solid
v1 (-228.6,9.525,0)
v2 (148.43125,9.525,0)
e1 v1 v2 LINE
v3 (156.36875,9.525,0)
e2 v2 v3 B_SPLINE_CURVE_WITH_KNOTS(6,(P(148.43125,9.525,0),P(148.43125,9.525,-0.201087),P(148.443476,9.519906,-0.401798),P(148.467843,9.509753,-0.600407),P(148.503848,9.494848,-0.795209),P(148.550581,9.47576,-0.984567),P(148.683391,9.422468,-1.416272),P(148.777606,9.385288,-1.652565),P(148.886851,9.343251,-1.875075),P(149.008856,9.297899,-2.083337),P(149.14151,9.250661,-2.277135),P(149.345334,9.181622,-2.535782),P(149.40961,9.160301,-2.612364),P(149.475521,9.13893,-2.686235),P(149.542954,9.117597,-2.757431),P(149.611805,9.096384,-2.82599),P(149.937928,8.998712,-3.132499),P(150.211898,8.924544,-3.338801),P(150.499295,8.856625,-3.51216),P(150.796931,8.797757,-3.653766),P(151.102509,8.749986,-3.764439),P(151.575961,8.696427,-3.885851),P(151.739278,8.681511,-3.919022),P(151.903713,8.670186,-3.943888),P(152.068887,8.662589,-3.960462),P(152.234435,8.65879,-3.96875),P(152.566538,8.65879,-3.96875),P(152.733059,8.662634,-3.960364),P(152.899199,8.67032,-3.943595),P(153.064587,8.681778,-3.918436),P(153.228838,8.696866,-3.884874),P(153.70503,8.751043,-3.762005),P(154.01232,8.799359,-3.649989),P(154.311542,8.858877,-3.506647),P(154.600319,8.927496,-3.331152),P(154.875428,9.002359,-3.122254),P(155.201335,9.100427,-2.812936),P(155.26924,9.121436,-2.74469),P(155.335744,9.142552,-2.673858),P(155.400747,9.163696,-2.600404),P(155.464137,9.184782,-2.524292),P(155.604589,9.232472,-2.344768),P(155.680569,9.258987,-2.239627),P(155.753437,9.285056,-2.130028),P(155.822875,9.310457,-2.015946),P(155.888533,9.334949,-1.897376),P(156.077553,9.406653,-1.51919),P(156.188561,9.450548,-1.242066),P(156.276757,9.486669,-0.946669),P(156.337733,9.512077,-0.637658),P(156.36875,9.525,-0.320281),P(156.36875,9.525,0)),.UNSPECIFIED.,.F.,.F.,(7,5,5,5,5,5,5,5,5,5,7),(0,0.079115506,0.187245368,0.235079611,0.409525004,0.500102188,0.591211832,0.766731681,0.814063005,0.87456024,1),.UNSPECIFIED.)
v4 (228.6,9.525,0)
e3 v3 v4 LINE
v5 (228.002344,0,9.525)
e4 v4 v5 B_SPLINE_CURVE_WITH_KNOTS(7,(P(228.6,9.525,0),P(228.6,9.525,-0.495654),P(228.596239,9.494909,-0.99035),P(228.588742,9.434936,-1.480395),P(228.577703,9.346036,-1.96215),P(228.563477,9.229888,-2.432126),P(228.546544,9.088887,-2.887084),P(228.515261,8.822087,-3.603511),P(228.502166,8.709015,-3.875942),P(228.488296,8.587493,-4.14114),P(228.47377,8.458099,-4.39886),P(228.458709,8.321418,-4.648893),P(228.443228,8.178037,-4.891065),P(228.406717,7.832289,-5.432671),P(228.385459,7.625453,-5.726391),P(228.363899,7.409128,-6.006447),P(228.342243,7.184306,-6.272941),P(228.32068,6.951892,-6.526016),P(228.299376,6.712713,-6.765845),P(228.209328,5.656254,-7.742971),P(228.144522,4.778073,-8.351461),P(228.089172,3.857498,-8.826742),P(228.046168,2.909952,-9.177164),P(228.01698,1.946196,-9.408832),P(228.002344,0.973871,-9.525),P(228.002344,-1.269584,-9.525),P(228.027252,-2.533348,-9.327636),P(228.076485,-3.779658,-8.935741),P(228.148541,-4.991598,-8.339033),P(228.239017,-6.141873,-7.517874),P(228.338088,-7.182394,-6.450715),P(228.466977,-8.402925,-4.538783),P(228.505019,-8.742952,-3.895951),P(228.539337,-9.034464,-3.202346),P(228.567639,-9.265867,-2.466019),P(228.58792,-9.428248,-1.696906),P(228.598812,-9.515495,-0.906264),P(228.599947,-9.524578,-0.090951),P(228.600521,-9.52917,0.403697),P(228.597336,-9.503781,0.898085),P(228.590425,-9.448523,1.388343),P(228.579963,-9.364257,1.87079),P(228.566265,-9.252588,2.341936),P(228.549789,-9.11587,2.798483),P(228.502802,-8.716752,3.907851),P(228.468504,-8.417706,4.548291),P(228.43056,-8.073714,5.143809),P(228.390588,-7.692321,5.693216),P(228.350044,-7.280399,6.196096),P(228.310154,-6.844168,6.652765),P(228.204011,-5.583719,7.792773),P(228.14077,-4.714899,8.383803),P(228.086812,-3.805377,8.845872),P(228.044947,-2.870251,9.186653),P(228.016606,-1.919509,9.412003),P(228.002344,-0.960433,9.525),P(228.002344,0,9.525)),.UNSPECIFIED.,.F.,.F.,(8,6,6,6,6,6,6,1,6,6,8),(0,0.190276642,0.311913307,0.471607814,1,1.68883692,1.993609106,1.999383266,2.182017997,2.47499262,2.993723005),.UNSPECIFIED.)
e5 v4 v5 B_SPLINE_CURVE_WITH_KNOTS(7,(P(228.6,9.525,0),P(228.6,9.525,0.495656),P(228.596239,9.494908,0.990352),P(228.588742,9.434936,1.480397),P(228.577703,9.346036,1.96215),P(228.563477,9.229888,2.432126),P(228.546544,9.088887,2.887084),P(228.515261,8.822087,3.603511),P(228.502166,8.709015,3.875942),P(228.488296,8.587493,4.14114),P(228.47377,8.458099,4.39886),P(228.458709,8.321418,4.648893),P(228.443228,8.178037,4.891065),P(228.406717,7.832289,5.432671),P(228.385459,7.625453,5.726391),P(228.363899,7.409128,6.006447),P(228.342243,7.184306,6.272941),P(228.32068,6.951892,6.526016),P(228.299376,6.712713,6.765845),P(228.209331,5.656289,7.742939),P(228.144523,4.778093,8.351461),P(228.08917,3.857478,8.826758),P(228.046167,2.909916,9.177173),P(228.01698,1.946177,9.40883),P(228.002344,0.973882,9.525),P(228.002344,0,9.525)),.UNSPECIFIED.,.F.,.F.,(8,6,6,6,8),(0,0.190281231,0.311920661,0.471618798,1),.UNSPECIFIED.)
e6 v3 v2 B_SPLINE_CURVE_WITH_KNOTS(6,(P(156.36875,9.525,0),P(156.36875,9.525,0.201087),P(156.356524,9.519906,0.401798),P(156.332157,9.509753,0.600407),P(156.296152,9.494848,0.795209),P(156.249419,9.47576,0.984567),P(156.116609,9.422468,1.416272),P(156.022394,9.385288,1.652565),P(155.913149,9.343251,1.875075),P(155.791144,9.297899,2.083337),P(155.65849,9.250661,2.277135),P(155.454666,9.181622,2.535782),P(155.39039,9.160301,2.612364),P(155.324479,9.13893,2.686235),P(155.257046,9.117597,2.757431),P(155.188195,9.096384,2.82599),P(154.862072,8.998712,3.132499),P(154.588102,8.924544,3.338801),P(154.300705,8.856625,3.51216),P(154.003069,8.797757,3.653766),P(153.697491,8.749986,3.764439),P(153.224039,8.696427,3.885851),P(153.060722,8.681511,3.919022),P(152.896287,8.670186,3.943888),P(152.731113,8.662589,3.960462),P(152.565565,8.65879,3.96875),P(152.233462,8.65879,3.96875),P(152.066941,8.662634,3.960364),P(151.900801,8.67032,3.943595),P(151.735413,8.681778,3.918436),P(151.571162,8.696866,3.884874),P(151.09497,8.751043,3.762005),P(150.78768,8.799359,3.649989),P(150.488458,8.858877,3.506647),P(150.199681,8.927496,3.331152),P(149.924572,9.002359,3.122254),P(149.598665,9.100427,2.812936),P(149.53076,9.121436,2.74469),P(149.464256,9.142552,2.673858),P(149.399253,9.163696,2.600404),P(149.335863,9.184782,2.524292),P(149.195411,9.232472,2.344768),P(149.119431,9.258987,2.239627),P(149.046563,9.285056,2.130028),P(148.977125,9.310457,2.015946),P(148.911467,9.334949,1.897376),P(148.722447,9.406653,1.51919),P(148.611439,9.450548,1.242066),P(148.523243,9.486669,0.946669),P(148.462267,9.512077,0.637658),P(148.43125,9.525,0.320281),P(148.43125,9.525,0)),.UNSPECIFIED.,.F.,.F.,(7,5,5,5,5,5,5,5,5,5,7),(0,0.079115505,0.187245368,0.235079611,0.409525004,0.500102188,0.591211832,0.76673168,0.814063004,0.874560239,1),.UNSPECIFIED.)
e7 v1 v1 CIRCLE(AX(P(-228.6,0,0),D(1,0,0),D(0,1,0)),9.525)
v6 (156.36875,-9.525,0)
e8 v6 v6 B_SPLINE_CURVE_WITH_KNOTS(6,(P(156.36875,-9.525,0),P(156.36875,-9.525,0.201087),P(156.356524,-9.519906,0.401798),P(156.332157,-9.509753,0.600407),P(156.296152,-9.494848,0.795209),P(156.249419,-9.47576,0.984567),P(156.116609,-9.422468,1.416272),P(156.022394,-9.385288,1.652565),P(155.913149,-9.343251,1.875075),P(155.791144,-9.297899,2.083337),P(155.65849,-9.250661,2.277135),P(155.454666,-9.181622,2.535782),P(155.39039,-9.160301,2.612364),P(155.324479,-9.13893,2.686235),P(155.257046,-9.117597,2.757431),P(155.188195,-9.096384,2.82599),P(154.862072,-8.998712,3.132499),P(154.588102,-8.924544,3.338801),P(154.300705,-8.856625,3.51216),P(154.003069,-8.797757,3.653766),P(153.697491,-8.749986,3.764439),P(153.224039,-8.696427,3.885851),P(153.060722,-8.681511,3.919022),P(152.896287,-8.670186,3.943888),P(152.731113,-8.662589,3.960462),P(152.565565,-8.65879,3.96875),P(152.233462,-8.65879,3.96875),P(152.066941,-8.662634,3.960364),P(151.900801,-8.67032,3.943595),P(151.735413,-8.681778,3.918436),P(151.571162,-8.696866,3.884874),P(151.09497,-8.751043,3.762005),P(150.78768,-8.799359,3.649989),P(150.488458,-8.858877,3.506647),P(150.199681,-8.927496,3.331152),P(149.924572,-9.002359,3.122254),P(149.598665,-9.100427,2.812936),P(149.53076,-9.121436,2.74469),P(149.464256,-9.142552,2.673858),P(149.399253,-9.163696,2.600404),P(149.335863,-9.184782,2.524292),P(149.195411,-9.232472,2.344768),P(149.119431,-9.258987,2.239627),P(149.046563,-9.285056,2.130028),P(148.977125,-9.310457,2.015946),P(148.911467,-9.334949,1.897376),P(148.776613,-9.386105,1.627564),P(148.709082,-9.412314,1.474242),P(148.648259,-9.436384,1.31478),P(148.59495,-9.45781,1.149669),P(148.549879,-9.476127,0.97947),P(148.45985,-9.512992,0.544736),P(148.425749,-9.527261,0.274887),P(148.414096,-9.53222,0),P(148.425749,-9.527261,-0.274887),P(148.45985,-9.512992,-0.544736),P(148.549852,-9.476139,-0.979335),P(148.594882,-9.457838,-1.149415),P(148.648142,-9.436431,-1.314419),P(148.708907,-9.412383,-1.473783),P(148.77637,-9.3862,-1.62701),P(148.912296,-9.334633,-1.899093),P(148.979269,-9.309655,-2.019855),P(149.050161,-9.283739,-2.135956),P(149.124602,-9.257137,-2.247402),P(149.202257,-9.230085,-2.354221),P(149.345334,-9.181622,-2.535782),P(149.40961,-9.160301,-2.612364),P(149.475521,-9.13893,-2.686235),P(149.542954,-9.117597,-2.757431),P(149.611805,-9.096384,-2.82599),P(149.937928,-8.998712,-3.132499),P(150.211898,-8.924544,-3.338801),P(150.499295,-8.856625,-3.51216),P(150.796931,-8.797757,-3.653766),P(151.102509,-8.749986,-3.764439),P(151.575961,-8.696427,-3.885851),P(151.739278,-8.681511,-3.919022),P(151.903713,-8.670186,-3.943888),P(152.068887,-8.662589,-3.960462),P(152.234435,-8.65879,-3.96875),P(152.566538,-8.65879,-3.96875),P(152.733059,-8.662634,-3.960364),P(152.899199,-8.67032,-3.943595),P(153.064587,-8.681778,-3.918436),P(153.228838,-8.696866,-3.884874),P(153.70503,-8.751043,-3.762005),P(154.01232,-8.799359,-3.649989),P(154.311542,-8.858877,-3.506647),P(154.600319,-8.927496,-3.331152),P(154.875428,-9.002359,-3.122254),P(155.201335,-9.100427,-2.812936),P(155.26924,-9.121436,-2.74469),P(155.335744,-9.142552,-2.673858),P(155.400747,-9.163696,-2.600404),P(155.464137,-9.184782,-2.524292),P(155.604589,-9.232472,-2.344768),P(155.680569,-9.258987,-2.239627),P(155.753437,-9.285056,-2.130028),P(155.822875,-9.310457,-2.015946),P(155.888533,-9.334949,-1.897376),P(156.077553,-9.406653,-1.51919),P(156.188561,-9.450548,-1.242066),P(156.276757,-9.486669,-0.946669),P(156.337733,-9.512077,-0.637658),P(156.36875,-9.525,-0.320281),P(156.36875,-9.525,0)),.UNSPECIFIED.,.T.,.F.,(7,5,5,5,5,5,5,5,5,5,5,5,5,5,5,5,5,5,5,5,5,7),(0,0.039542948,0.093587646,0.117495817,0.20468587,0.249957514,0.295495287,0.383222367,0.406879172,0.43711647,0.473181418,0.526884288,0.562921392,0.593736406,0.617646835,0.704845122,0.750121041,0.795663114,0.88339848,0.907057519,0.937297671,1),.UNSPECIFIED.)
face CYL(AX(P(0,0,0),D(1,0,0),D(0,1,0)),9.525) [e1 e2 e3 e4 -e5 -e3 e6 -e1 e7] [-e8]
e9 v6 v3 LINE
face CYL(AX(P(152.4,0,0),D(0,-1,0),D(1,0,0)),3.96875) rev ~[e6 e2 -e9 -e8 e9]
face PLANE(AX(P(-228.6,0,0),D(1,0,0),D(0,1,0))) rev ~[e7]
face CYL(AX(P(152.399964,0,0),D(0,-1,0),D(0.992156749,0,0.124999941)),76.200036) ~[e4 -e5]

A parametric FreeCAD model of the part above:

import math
import FreeCAD as App
import Part
import Sketcher

V = App.Vector
Q = App.Units.Quantity

doc = App.newDocument("Part")
body = doc.addObject("PartDesign::Body", "Body")

# Sketch on YZ plane
sketch1 = body.newObject("Sketcher::SketchObject", "Sketch")
sketch1.AttachmentSupport = (doc.getObject("YZ_Plane"), [""])
sketch1.MapMode = "FlatFace"
sketch1.addGeometry(Part.Circle(V(0, 0, 0), V(0, 0, 1), 10), False)
sketch1.addConstraint(Sketcher.Constraint("Coincident", 0, 3, -1, 1))
sketch1.addConstraint(Sketcher.Constraint("Diameter", 0, Q("0.75 in")))
pad1 = body.newObject("PartDesign::Pad", "Pad")
pad1.Profile = sketch1
pad1.Length = Q("18 in")
pad1.Midplane = True

# Sketch on XZ plane
sketch2 = body.newObject("Sketcher::SketchObject", "Sketch001")
sketch2.AttachmentSupport = (doc.getObject("XZ_Plane"), [""])
sketch2.MapMode = "FlatFace"
sketch2.addGeometry(Part.Circle(V(152.4, 0, 0), V(0, 0, 1), 4), False)
sketch2.addGeometry(Part.ArcOfCircle(Part.Circle(V(152.4, 0, 0), V(0, 0, 1), 76.2), math.radians(-7.18), math.radians(7.18)), False)
sketch2.addGeometry(Part.LineSegment(V(228, -9.5, 0), V(235.3, -9.5, 0)), False)
sketch2.addGeometry(Part.LineSegment(V(235.3, -9.5, 0), V(235.3, 9.5, 0)), False)
sketch2.addGeometry(Part.LineSegment(V(235.3, 9.5, 0), V(228, 9.5, 0)), False)
sketch2.addConstraint(Sketcher.Constraint("Coincident", 1, 1, 2, 1))
sketch2.addConstraint(Sketcher.Constraint("Coincident", 2, 2, 3, 1))
sketch2.addConstraint(Sketcher.Constraint("Coincident", 3, 2, 4, 1))
sketch2.addConstraint(Sketcher.Constraint("Coincident", 4, 2, 1, 2))
sketch2.addConstraint(Sketcher.Constraint("Horizontal", 2))
sketch2.addConstraint(Sketcher.Constraint("Vertical", 3))
sketch2.addConstraint(Sketcher.Constraint("Horizontal", 4))
sketch2.addConstraint(Sketcher.Constraint("Symmetric", 1, 1, 4, 2, -1))
sketch2.addConstraint(Sketcher.Constraint("PointOnObject", 0, 3, -1))
sketch2.addConstraint(Sketcher.Constraint("Diameter", 0, Q("0.3125 in")))
sketch2.addConstraint(Sketcher.Constraint("DistanceX", -1, 1, 0, 3, Q("6 in")))
sketch2.addConstraint(Sketcher.Constraint("DistanceY", 3, 1, 3, 2, Q("0.75 in")))
sketch2.addConstraint(Sketcher.Constraint("Radius", 1, Q("76.200036 mm")))
sketch2.addConstraint(Sketcher.Constraint("DistanceX", 2, 1, 2, 2, Q("7.249172 mm")))
sketch2.addConstraint(Sketcher.Constraint("DistanceX", -1, 1, 1, 3, Q("152.399964 mm")))
pocket1 = body.newObject("PartDesign::Pocket", "Pocket")
pocket1.Profile = sketch2
pocket1.Length = Q("1 in")
pocket1.Midplane = True

doc.recompute()
